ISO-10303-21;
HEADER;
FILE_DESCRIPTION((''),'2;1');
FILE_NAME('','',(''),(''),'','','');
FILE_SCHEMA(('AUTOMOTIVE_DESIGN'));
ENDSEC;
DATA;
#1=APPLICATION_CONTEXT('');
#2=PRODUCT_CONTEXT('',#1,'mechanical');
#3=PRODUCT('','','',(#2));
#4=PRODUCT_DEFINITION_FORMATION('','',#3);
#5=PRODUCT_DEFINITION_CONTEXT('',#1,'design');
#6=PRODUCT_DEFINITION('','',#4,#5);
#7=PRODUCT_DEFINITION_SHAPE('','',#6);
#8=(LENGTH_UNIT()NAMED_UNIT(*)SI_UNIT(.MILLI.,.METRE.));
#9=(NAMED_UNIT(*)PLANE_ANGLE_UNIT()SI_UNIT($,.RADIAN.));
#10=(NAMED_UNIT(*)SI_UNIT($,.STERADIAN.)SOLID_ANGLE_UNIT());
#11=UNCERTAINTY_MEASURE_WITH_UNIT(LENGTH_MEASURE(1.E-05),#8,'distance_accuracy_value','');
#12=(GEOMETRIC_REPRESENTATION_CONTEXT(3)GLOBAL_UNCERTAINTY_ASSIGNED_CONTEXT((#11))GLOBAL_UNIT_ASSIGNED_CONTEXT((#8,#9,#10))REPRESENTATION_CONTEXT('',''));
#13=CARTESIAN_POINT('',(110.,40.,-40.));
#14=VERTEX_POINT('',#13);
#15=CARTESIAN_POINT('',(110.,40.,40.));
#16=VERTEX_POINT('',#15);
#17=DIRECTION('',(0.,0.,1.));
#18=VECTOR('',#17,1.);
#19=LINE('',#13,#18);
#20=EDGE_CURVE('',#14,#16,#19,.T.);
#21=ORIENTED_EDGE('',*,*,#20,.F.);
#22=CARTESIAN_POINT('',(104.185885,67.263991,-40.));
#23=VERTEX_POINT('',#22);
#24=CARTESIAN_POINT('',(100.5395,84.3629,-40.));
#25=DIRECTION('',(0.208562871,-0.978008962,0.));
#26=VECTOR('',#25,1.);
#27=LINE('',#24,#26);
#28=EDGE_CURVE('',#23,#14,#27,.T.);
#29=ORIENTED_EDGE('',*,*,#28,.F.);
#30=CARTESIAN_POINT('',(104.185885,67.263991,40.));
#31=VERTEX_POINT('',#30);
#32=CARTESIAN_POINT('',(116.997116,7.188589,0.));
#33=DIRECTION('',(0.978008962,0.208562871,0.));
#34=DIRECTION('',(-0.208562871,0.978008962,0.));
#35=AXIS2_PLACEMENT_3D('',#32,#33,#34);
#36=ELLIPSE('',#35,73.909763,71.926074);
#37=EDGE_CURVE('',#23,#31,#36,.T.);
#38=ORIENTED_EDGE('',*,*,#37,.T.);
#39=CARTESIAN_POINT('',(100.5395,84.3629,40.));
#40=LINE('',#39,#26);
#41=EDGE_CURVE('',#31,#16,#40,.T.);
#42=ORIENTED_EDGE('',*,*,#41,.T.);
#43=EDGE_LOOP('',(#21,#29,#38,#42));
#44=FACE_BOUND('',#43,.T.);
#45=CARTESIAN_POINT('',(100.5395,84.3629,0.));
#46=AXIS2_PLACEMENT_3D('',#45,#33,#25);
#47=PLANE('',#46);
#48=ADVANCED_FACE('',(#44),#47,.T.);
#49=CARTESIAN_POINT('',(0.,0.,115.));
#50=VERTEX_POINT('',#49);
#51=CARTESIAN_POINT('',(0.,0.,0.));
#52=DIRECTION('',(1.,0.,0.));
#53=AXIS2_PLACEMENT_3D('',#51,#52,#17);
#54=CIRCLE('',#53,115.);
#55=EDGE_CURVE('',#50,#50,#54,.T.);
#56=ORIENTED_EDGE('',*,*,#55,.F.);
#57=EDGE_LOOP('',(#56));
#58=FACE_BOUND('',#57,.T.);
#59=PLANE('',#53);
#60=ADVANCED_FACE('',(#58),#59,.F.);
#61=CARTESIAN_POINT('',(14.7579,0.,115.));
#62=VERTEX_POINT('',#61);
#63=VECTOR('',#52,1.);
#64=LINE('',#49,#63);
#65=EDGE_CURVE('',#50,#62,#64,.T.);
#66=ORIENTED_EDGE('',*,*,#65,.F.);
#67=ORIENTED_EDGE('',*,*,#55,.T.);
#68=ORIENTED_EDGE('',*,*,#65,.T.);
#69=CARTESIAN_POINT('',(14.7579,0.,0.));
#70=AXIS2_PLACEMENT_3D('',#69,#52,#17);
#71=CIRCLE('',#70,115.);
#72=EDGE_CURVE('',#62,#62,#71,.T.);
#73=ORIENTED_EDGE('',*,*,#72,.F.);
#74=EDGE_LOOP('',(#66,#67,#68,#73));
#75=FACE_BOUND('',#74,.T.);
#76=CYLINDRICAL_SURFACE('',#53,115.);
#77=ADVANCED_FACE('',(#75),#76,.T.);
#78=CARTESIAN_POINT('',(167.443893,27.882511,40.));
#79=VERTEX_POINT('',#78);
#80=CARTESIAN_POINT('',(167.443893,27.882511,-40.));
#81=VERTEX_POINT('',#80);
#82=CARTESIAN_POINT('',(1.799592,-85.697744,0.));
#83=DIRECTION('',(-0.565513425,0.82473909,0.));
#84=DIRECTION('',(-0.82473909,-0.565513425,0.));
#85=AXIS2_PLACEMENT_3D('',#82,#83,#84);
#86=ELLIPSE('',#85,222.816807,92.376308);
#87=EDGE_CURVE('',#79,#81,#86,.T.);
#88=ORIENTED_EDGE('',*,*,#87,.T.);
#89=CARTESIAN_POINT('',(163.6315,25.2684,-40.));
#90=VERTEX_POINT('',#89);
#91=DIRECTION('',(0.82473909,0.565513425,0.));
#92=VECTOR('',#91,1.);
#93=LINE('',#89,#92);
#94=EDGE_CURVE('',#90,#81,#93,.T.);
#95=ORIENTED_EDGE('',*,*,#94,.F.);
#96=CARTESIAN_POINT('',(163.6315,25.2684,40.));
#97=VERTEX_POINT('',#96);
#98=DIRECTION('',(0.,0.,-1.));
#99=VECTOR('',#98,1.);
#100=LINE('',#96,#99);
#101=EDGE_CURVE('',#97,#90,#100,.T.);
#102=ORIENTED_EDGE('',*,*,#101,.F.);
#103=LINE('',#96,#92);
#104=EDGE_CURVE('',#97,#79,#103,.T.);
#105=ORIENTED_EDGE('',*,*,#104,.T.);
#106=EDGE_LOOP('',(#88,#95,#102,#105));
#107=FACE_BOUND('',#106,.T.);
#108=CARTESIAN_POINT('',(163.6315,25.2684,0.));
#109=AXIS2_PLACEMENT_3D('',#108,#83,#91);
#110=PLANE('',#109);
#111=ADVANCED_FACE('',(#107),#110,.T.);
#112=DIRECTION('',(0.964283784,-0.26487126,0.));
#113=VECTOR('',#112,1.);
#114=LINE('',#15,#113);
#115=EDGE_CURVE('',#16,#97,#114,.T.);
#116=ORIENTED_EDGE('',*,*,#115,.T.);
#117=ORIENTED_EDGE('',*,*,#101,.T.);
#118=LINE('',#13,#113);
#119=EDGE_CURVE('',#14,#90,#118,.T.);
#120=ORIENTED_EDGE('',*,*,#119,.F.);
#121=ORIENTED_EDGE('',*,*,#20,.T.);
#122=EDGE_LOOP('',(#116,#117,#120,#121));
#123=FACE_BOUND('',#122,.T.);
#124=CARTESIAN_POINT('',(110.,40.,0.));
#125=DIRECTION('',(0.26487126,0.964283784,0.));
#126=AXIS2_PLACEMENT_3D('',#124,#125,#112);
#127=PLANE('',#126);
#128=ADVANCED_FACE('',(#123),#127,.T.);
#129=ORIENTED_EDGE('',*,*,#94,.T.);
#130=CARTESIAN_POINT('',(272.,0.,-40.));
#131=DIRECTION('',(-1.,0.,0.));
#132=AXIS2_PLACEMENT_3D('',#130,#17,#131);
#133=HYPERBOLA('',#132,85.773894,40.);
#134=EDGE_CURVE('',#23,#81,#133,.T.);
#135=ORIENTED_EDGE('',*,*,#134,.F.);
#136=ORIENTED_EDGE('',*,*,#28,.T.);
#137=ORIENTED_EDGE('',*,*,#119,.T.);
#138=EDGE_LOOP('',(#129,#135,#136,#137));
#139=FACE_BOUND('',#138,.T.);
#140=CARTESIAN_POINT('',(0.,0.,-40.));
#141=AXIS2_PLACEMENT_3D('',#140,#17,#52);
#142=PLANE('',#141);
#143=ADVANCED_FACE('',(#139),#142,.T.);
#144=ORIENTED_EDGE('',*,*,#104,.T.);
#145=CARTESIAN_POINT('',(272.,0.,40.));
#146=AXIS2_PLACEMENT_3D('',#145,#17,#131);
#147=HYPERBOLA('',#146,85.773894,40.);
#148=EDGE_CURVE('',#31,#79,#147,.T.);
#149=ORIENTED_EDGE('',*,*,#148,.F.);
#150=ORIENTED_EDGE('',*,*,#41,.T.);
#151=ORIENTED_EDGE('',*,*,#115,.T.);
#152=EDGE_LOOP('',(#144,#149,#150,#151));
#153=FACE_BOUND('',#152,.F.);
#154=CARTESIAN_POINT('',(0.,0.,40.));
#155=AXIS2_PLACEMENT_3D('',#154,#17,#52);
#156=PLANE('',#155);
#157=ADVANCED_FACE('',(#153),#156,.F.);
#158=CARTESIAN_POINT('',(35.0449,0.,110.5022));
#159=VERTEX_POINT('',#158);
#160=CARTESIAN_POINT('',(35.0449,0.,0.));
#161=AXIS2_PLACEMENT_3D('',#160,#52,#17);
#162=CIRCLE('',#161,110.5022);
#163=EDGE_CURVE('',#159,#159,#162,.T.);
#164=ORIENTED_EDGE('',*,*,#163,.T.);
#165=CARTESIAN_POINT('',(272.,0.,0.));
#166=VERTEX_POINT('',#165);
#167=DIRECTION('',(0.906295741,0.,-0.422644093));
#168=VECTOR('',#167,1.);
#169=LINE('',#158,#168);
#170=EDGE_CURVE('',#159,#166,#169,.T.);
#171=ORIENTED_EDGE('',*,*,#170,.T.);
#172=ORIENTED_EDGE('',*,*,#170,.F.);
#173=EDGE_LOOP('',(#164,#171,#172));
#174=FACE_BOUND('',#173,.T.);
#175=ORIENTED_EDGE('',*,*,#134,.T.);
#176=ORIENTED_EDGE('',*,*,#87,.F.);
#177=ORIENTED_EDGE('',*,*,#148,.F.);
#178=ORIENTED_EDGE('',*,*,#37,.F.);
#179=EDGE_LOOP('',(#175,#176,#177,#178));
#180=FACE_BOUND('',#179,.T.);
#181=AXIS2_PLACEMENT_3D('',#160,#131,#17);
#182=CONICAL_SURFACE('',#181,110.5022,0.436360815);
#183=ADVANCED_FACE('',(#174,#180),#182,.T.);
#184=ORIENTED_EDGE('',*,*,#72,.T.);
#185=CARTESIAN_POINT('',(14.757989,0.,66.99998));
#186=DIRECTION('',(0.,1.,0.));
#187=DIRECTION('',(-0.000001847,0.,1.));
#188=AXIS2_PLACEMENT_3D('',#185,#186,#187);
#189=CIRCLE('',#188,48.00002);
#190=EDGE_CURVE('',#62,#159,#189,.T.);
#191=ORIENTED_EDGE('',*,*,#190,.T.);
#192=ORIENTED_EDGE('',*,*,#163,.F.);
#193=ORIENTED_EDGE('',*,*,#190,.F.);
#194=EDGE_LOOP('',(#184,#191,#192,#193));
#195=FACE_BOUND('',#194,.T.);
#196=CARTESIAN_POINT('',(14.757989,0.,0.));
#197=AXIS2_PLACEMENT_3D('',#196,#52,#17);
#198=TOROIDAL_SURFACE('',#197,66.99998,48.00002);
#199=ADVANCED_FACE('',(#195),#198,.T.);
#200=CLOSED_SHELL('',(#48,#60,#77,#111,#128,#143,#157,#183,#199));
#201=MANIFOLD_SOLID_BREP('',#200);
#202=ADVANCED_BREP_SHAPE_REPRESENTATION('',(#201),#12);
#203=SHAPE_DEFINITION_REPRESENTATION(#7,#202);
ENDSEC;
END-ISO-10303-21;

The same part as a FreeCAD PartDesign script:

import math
import FreeCAD as App
import Part
import Sketcher
from FreeCAD import Vector
Q = App.Units.Quantity


def add_polygon(sketch, points):
    """Adds a closed chain of lines whose ends are joined by coincident constraints."""
    first, n = sketch.GeometryCount, len(points)
    for a, b in zip(points, points[1:] + points[:1]):
        sketch.addGeometry(Part.LineSegment(App.Vector(*a, 0), App.Vector(*b, 0)), False)
    for i in range(n):
        sketch.addConstraint(Sketcher.Constraint("Coincident", first + i, 2, first + (i + 1) % n, 1))

doc = App.newDocument("Part")
params = doc.addObject("Spreadsheet::Sheet", "Params")
for row, (alias, value) in enumerate([
    ("sketch1_radius", "48 mm"),
    ("sketch1_width", "272 mm"),
    ("sketch1_height", "115 mm"),
    ("revolution_angle", "360 deg"),
    ("pocket1_length", "80 mm"),
], start=1):
    params.set(f"A{row}", alias)
    params.set(f"B{row}", "=" + value)
    params.setAlias(f"B{row}", alias)

body = doc.addObject("PartDesign::Body", "Body")

# Sketch on XZ plane
sketch1 = doc.addObject("Sketcher::SketchObject", "Sketch")
body.addObject(sketch1)
sketch1.AttachmentSupport = (doc.XZ_Plane, [""])
sketch1.MapMode = "FlatFace"
sketch1.addGeometry([
    Part.LineSegment(Vector(272, 0, 0), Vector(0, 0, 0)),  # 0
    Part.LineSegment(Vector(0, 0, 0), Vector(0, 115, 0)),  # 1
    Part.LineSegment(Vector(0, 115, 0), Vector(14.7579, 115, 0)),  # 2
    Part.ArcOfCircle(Part.Circle(Vector(14.7579, 67, 0), Vector(0, 0, 1), 48), math.radians(64.998279), math.radians(90)),  # 3
    Part.LineSegment(Vector(35.0449, 110.5022, 0), Vector(272, 0, 0)),  # 4
], False)
sketch1.addConstraint([
    Sketcher.Constraint("Coincident", 0, 2, 1, 1),
    Sketcher.Constraint("Coincident", 1, 2, 2, 1),
    Sketcher.Constraint("Tangent", 2, 2, 3, 2),
    Sketcher.Constraint("Tangent", 3, 1, 4, 1),
    Sketcher.Constraint("Coincident", 4, 2, 0, 1),
    Sketcher.Constraint("Horizontal", 0),
    Sketcher.Constraint("Vertical", 1),
    Sketcher.Constraint("Horizontal", 2),
    Sketcher.Constraint("Coincident", 0, 2, -1, 1),
    Sketcher.Constraint("Radius", 3, 48.0),
    Sketcher.Constraint("DistanceX", 0, 2, 0, 1, 272.0),
    Sketcher.Constraint("DistanceY", 1, 1, 1, 2, 115.0),
    Sketcher.Constraint("DistanceX", 2, 1, 2, 2, 14.758),
])
sketch1.setExpression("Constraints[9]", "Params.sketch1_radius")
sketch1.setExpression("Constraints[10]", "Params.sketch1_width")
sketch1.setExpression("Constraints[11]", "Params.sketch1_height")
revolution = doc.addObject("PartDesign::Revolution", "Revolution")
body.addObject(revolution)
revolution.Profile = sketch1
revolution.ReferenceAxis = (sketch1, ["H_Axis"])
revolution.setExpression("Angle", "Params.revolution_angle")

# Sketch on XY plane
sketch2 = doc.addObject("Sketcher::SketchObject", "Sketch001")
body.addObject(sketch2)
sketch2.AttachmentSupport = (doc.XY_Plane, [""])
sketch2.MapMode = "FlatFace"
add_polygon(sketch2, [(189.7167, 43.1547), (100.5395, 84.3629), (110, 40), (163.6315, 25.2684)])  # lines 0-3
sketch2.addConstraint([
    Sketcher.Constraint("DistanceX", -1, 1, 1, 2, 110.0),
    Sketcher.Constraint("DistanceY", -1, 1, 1, 2, 40.0),
    Sketcher.Constraint("Angle", 2, Q("-15.3593 deg")),
    Sketcher.Constraint("Distance", 0, 98.238),
    Sketcher.Constraint("Distance", 2, 55.618),
    Sketcher.Constraint("DistanceY", -1, 1, 0, 2, 84.363),
    Sketcher.Constraint("DistanceX", 0, 2, 2, 2, 63.092),
    Sketcher.Constraint("Distance", 3, 31.6284),
])
pocket1 = doc.addObject("PartDesign::Pocket", "Pocket")
body.addObject(pocket1)
pocket1.Profile = sketch2
pocket1.setExpression("Length", "Params.pocket1_length")
pocket1.Midplane = True

doc.recompute()
